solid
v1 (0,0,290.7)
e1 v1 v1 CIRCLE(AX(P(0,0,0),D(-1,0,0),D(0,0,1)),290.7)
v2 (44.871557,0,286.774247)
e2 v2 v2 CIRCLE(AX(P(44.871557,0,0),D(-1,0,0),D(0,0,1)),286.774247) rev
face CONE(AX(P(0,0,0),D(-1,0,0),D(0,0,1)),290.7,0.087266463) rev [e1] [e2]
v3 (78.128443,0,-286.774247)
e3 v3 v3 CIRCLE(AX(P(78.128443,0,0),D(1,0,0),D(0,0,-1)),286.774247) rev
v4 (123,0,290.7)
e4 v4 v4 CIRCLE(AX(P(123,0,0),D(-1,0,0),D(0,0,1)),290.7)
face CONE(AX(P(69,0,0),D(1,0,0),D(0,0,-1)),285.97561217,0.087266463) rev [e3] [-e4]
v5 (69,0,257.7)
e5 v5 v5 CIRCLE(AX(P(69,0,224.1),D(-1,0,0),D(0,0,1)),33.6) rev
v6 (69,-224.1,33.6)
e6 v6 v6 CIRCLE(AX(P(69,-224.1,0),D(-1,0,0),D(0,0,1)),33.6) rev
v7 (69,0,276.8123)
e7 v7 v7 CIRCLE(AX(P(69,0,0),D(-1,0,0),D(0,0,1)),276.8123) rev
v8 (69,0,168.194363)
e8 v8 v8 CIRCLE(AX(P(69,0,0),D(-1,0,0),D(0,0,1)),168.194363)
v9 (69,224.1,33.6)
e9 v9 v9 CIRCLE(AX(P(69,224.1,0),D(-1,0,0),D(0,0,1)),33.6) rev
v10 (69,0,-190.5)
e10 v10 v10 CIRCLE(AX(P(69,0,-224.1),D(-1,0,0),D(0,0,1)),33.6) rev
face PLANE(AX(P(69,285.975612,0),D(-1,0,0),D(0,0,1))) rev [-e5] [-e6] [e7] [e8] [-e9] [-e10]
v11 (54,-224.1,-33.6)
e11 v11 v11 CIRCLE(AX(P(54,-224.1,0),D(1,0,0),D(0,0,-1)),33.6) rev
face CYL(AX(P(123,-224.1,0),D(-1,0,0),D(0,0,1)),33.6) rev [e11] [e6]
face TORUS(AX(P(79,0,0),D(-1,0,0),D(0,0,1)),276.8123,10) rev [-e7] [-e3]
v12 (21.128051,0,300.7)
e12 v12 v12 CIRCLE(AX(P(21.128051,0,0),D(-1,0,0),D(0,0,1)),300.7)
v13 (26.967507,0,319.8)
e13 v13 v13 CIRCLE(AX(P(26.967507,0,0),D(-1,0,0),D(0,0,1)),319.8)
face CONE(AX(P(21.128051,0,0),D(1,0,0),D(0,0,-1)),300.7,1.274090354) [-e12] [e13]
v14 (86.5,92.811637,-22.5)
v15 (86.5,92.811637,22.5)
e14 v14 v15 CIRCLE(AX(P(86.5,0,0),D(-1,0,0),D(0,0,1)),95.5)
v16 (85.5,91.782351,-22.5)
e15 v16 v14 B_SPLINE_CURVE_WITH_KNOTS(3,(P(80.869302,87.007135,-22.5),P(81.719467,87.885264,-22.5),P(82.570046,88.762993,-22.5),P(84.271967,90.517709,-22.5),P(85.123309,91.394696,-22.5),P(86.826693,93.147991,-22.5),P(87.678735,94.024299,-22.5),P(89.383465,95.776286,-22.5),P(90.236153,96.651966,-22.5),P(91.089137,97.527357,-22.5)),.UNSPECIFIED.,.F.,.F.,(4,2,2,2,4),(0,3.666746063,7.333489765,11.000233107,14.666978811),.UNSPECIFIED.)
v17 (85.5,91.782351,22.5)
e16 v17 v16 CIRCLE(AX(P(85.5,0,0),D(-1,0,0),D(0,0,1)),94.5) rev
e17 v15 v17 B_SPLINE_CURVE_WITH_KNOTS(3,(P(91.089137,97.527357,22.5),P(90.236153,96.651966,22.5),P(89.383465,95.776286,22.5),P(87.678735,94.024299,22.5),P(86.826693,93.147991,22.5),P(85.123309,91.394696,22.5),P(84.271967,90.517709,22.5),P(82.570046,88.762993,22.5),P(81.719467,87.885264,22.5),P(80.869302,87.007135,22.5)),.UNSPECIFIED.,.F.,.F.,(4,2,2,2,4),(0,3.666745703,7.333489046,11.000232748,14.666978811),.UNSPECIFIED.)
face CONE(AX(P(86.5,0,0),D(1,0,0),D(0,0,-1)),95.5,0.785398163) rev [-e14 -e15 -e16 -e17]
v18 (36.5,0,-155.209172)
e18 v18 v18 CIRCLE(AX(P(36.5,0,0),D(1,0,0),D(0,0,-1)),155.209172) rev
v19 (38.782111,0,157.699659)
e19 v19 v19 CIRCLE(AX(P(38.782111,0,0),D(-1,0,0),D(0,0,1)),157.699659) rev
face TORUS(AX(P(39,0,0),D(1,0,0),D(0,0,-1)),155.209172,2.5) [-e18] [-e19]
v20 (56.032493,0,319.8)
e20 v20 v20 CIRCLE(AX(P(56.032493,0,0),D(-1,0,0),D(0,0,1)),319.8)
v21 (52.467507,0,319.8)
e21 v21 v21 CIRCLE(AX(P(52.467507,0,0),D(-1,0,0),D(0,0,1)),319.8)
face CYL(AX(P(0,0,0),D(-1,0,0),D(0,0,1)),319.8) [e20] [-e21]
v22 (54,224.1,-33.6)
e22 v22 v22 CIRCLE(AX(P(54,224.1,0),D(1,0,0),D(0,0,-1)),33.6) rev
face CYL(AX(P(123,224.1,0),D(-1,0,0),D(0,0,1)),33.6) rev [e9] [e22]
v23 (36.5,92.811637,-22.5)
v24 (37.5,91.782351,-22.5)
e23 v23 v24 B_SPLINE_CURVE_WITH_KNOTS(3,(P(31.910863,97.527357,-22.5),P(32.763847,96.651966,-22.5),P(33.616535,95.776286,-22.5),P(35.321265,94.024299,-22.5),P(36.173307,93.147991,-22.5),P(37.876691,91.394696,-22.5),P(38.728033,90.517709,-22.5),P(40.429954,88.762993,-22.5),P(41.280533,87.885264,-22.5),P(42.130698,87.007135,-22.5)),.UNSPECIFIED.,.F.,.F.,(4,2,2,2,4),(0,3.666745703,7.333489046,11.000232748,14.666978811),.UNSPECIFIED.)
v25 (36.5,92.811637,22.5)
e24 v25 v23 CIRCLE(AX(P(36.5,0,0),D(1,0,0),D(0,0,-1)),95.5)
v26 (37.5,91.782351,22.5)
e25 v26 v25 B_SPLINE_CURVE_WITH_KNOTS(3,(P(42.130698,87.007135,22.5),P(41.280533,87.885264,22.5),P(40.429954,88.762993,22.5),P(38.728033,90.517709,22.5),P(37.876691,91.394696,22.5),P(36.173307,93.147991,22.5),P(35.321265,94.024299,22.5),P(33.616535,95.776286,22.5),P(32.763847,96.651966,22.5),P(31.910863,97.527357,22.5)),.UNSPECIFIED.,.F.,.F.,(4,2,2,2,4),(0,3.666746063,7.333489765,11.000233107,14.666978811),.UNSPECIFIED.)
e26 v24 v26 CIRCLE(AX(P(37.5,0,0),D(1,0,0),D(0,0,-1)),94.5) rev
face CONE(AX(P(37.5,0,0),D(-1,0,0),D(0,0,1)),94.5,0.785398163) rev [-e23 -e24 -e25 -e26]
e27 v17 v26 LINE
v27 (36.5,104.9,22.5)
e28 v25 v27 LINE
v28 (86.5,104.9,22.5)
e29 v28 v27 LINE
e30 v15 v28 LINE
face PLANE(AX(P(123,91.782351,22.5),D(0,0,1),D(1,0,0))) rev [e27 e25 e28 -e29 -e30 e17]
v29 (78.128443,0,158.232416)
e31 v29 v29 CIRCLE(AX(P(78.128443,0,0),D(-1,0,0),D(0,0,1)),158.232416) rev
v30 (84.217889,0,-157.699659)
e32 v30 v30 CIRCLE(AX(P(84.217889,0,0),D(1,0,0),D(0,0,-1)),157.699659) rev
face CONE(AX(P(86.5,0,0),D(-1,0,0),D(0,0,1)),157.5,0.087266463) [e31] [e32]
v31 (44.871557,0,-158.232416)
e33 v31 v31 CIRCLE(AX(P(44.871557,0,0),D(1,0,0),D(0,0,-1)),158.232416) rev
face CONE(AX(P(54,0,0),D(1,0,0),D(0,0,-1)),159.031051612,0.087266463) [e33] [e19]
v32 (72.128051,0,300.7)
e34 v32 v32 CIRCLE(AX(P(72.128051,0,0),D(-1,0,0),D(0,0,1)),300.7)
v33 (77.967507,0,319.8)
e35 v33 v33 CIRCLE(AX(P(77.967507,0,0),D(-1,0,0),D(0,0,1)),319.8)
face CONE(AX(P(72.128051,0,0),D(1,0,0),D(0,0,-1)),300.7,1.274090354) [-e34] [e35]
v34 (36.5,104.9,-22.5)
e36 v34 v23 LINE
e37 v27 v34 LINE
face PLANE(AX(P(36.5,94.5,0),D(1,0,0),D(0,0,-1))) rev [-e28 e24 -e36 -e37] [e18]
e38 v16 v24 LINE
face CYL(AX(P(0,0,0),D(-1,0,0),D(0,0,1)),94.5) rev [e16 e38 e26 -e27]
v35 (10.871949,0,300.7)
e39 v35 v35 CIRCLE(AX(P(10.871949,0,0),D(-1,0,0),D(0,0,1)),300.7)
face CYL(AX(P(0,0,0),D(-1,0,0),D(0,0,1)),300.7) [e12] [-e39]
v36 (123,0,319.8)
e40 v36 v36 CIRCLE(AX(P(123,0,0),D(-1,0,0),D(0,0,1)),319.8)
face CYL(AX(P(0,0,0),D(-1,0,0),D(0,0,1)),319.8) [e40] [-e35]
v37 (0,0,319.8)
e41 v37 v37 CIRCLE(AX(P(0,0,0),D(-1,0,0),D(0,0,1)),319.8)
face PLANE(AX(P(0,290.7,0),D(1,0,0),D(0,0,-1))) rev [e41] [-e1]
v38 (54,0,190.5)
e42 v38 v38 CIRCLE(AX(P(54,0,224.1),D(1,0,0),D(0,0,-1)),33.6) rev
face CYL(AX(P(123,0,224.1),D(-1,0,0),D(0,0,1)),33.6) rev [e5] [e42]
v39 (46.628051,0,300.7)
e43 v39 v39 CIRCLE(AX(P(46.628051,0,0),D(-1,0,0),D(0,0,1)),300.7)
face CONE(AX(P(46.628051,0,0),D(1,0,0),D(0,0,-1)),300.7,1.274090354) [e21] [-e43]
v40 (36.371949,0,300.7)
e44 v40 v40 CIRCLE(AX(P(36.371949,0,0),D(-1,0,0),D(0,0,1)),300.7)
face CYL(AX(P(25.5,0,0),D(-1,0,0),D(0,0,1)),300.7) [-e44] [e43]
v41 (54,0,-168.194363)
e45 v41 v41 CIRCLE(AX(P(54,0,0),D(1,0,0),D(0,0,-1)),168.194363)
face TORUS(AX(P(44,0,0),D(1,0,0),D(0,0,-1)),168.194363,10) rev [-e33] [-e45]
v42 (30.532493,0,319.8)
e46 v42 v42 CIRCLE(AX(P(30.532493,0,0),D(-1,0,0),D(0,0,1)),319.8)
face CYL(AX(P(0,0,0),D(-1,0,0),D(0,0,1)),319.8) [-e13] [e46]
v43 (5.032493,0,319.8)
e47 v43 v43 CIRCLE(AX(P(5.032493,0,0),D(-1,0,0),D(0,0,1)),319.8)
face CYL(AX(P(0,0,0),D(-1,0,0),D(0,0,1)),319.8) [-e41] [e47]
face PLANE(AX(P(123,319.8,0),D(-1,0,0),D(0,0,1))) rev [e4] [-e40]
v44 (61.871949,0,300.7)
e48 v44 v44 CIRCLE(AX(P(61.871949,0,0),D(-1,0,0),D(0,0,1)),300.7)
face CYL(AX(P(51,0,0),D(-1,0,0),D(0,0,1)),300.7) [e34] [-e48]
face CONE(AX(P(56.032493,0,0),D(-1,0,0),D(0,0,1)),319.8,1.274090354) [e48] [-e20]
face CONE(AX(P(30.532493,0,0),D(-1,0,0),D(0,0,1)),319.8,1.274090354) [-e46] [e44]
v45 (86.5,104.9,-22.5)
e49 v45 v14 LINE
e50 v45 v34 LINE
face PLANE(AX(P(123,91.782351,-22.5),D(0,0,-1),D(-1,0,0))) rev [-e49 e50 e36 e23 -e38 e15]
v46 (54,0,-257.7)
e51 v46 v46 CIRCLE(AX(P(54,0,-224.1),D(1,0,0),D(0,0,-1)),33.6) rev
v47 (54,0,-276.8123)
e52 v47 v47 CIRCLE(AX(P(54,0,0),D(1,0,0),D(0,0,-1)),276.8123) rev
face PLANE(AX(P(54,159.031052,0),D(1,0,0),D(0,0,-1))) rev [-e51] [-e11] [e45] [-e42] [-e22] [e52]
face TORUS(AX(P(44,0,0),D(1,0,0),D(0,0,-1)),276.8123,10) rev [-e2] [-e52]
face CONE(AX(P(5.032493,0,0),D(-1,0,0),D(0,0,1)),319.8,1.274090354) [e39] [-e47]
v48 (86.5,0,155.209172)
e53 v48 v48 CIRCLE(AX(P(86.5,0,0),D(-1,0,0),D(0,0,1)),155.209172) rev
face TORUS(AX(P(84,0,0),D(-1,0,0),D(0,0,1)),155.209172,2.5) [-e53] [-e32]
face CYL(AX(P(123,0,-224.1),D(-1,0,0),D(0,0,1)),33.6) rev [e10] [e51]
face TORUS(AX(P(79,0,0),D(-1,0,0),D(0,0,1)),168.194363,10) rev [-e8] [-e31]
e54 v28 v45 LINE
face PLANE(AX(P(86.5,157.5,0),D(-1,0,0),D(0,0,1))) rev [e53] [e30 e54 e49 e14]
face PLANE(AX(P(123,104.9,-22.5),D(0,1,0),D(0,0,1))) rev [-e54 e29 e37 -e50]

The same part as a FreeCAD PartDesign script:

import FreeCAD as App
import Part
import Sketcher
Q = App.Units.Quantity


def edges_at(feature, points):
    """Names of the edges that pass closest to the given points."""
    edges = feature.Shape.Edges
    near = lambda p: min(range(len(edges)), key=lambda i: edges[i].distToShape(Part.Vertex(*p))[0])
    return sorted({f"Edge{near(p) + 1}" for p in points})


def add_polygon(sketch, points):
    """Adds a closed chain of lines whose ends are joined by coincident constraints."""
    first, n = sketch.GeometryCount, len(points)
    for a, b in zip(points, points[1:] + points[:1]):
        sketch.addGeometry(Part.LineSegment(App.Vector(*a, 0), App.Vector(*b, 0)), False)
    for i in range(n):
        sketch.addConstraint(Sketcher.Constraint("Coincident", first + i, 2, first + (i + 1) % n, 1))

doc = App.newDocument("Part")
body = doc.addObject("PartDesign::Body", "Body")

# Sketch on XY plane
sketch1 = body.newObject("Sketcher::SketchObject", "Sketch")
sketch1.AttachmentSupport = (doc.getObject("XY_Plane"), [""])
sketch1.MapMode = "FlatFace"
add_polygon(sketch1, [(36, 158), (36, 94), (86, 94), (86, 158), (69, 159), (69, 286), (123, 291), (123, 320), (0, 320), (0, 291), (54, 286), (54, 159)])  # lines 0-11
sketch1.addConstraint([
    Sketcher.Constraint("Vertical", 0),
    Sketcher.Constraint("Horizontal", 1),
    Sketcher.Constraint("Vertical", 2),
    Sketcher.Constraint("Vertical", 4),
    Sketcher.Constraint("Vertical", 6),
    Sketcher.Constraint("Horizontal", 7),
    Sketcher.Constraint("Vertical", 8),
    Sketcher.Constraint("Vertical", 10),
    Sketcher.Constraint("PointOnObject", 7, 2, -2),
    Sketcher.Constraint("Parallel", 3, 9),
    Sketcher.Constraint("Parallel", 5, 11),
    Sketcher.Constraint("Horizontal", 5, 2, 8, 2),
    Sketcher.Constraint("Horizontal", 4, 2, 9, 2),
    Sketcher.Constraint("Horizontal", 3, 2, 10, 2),
    Sketcher.Constraint("Horizontal", 2, 2, 11, 2),
    Sketcher.Constraint("Equal", 5, 9),
    Sketcher.Constraint("DistanceX", 1, 1, 1, 2, 50.0),
    Sketcher.Constraint("DistanceX", 7, 2, 7, 1, 123.0),
    Sketcher.Constraint("DistanceY", 0, 2, 0, 1, 63.0),
    Sketcher.Constraint("Angle", 3, Q("175 deg")),
    Sketcher.Constraint("DistanceY", 6, 1, 6, 2, 29.1),
    Sketcher.Constraint("DistanceX", -1, 1, 3, 2, 69.0),
    Sketcher.Constraint("DistanceY", -1, 1, 0, 2, 94.5),
    Sketcher.Constraint("DistanceY", -1, 1, 5, 2, 290.7),
])
revolution = body.newObject("PartDesign::Revolution", "Revolution")
revolution.Profile = sketch1
revolution.ReferenceAxis = (sketch1, ["H_Axis"])
revolution.Angle = 360

# Sketch on XY plane
sketch2 = body.newObject("Sketcher::SketchObject", "Sketch001")
sketch2.AttachmentSupport = (doc.getObject("XY_Plane"), [""])
sketch2.MapMode = "FlatFace"
add_polygon(sketch2, [(21, 301), (27, 320), (5, 320), (11, 301)])  # lines 0-3
sketch2.addConstraint([
    Sketcher.Constraint("Horizontal", 1),
    Sketcher.Constraint("Horizontal", 3),
    Sketcher.Constraint("Equal", 0, 2),
    Sketcher.Constraint("Angle", 0, Q("73 deg")),
    Sketcher.Constraint("DistanceY", -1, 1, 0, 2, 319.8),
    Sketcher.Constraint("DistanceY", -1, 1, 2, 2, 300.7),
    Sketcher.Constraint("DistanceX", 1, 2, 1, 1, 21.935015),
    Sketcher.Constraint("DistanceX", -1, 1, 2, 2, 10.871949),
])
groove = body.newObject("PartDesign::Groove", "Groove")
groove.Profile = sketch2
groove.ReferenceAxis = (sketch2, ["H_Axis"])
groove.Angle = 360
doc.recompute()

linearpattern = body.newObject("PartDesign::LinearPattern", "LinearPattern")
linearpattern.Originals = [groove]
linearpattern.Direction = (doc.getObject("X_Axis"), [""])
linearpattern.Mode = "offset"
linearpattern.Offset = 25.5
linearpattern.Occurrences = 3
body.Tip = linearpattern
doc.recompute()

chamfer = body.newObject("PartDesign::Chamfer", "Chamfer")
chamfer.Base = (linearpattern, edges_at(linearpattern, [(36.5, 0, -94.5), (86.5, 0, -94.5)]))
chamfer.Size = 1

# Sketch on YZ plane
sketch3 = body.newObject("Sketcher::SketchObject", "Sketch002")
sketch3.AttachmentSupport = (doc.getObject("YZ_Plane"), [""])
sketch3.MapMode = "FlatFace"
sketch3.AttachmentOffset = App.Placement(App.Vector(0, 0, 36.5), App.Rotation())
add_polygon(sketch3, [(105, -22), (92, -22), (92, 22), (105, 22)])  # lines 0-3
sketch3.addConstraint([
    Sketcher.Constraint("Horizontal", 0),
    Sketcher.Constraint("Vertical", 1),
    Sketcher.Constraint("Horizontal", 2),
    Sketcher.Constraint("Vertical", 3),
    Sketcher.Constraint("DistanceY", 1, 1, 1, 2, 45.0),
    Sketcher.Constraint("DistanceY", 0, 2, -1, 1, 22.5),
    Sketcher.Constraint("DistanceX", -1, 1, 2, 2, 104.9),
    Sketcher.Constraint("DistanceX", 0, 2, 0, 1, 13.117648),
])
pocket1 = body.newObject("PartDesign::Pocket", "Pocket")
pocket1.Profile = sketch3
pocket1.Type = "ThroughAll"
pocket1.Reversed = True
doc.recompute()

fillet = body.newObject("PartDesign::Fillet", "Fillet")
fillet.Base = (pocket1, edges_at(pocket1, [
    (54, 0, -285.976),
    (54, 0, -159.031),
    (69, 0, -159.031),
    (69, 0, -285.976),
]))
fillet.Radius = 10
doc.recompute()

fillet2 = body.newObject("PartDesign::Fillet", "Fillet001")
fillet2.Base = (fillet, edges_at(fillet, [(36.5, 0, -157.5), (86.5, 0, -157.5)]))
fillet2.Radius = 2.5

# Sketch on YZ plane
sketch4 = body.newObject("Sketcher::SketchObject", "Sketch003")
sketch4.AttachmentSupport = (doc.getObject("YZ_Plane"), [""])
sketch4.MapMode = "FlatFace"
sketch4.addGeometry(Part.Circle(App.Vector(224, 0, 0), App.Vector(0, 0, 1), 34), False)
sketch4.addConstraint([
    Sketcher.Constraint("PointOnObject", 0, 3, -1),
    Sketcher.Constraint("Diameter", 0, 67.2),
    Sketcher.Constraint("DistanceX", -1, 1, 0, 3, 224.1),
])
pocket2 = body.newObject("PartDesign::Pocket", "Pocket001")
pocket2.Profile = sketch4
pocket2.Type = "ThroughAll"
pocket2.Reversed = True
doc.recompute()

polarpattern = body.newObject("PartDesign::PolarPattern", "PolarPattern")
polarpattern.Originals = [pocket2]
polarpattern.Axis = (doc.getObject("X_Axis"), [""])
polarpattern.Angle = 360
polarpattern.Occurrences = 4
body.Tip = polarpattern

doc.recompute()
